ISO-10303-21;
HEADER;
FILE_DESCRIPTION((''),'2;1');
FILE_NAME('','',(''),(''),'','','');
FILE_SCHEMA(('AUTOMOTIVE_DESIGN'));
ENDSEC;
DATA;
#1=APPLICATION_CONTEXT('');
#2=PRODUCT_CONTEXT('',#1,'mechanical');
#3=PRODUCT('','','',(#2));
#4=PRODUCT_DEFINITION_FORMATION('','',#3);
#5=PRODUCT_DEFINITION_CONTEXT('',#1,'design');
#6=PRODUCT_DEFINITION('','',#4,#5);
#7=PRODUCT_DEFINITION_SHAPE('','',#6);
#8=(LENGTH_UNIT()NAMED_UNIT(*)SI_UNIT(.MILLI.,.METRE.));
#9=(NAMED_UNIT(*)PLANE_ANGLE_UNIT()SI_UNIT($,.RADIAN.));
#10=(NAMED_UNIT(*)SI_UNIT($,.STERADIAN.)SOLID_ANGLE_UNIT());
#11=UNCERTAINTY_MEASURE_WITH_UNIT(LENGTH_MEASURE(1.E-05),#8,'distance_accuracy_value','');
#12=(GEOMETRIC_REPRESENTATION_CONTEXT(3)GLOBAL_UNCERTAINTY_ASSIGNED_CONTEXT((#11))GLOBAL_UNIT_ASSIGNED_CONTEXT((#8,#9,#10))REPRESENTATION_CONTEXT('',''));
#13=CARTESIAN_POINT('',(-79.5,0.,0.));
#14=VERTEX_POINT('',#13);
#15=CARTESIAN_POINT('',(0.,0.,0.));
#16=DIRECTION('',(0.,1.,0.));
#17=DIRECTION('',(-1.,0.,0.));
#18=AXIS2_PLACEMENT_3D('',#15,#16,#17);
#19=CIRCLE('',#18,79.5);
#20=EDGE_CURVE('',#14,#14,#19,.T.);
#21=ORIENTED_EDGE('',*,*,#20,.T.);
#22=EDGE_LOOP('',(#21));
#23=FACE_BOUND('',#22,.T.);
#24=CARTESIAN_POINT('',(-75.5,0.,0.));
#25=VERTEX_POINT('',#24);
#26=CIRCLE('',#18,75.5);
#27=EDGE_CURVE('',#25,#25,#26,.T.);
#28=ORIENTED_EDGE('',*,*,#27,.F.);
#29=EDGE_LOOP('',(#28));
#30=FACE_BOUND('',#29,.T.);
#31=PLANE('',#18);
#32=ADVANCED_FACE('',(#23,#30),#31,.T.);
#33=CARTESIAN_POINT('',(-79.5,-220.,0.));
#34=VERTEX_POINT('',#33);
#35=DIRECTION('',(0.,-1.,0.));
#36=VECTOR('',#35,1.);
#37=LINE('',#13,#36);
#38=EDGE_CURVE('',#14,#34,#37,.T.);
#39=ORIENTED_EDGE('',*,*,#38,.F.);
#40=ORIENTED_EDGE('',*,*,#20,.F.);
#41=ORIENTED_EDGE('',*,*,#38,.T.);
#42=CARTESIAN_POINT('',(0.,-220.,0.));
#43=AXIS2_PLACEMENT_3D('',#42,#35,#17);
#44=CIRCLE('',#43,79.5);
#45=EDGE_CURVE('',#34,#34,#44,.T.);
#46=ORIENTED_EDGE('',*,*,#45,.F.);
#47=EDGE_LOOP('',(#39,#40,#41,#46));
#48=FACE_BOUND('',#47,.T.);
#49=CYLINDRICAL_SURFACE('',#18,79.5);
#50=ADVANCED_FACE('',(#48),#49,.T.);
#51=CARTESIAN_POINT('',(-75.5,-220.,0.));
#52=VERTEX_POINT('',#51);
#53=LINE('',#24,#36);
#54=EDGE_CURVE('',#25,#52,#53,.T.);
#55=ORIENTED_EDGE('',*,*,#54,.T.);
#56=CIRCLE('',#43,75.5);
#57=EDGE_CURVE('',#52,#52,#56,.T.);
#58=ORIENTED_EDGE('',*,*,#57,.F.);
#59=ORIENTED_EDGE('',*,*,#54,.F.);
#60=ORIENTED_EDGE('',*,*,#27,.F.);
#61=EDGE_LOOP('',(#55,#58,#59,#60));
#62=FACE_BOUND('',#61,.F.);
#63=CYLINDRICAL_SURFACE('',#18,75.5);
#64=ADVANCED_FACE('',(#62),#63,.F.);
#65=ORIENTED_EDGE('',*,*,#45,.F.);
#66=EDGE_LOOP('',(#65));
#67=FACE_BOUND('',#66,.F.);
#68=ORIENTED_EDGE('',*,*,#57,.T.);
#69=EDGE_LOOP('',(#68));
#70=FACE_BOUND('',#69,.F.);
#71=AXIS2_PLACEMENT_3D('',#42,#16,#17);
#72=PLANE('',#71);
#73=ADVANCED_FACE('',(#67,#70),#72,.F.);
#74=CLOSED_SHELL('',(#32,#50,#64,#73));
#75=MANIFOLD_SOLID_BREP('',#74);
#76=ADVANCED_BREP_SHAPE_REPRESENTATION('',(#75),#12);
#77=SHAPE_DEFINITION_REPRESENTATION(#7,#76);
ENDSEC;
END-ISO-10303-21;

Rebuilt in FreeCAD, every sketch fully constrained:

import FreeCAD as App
import Part
import Sketcher
from FreeCAD import Vector
Q = App.Units.Quantity

doc = App.newDocument("Part")
body = doc.addObject("PartDesign::Body", "Body")

sketch1 = doc.addObject("Sketcher::SketchObject", "Sketch")
body.addObject(sketch1)
sketch1.AttachmentSupport = (doc.XZ_Plane, [""])
sketch1.MapMode = "FlatFace"
sketch1.addGeometry(Part.Circle(Vector(0, 0, 0), Vector(0, 0, 1), 79.5), False)
sketch1.addGeometry(Part.Circle(Vector(0, 0, 0), Vector(0, 0, 1), 75.5), False)
sketch1.addConstraint(Sketcher.Constraint("Coincident", 0, 3, -1, 1))
sketch1.addConstraint(Sketcher.Constraint("Coincident", 1, 3, -1, 1))
sketch1.addConstraint(Sketcher.Constraint("Diameter", 0, Q("159 mm")))
sketch1.addConstraint(Sketcher.Constraint("Diameter", 1, Q("151 mm")))
pad1 = doc.addObject("PartDesign::Pad", "Pad")
body.addObject(pad1)
pad1.Profile = sketch1
pad1.Length = 220

doc.recompute()
